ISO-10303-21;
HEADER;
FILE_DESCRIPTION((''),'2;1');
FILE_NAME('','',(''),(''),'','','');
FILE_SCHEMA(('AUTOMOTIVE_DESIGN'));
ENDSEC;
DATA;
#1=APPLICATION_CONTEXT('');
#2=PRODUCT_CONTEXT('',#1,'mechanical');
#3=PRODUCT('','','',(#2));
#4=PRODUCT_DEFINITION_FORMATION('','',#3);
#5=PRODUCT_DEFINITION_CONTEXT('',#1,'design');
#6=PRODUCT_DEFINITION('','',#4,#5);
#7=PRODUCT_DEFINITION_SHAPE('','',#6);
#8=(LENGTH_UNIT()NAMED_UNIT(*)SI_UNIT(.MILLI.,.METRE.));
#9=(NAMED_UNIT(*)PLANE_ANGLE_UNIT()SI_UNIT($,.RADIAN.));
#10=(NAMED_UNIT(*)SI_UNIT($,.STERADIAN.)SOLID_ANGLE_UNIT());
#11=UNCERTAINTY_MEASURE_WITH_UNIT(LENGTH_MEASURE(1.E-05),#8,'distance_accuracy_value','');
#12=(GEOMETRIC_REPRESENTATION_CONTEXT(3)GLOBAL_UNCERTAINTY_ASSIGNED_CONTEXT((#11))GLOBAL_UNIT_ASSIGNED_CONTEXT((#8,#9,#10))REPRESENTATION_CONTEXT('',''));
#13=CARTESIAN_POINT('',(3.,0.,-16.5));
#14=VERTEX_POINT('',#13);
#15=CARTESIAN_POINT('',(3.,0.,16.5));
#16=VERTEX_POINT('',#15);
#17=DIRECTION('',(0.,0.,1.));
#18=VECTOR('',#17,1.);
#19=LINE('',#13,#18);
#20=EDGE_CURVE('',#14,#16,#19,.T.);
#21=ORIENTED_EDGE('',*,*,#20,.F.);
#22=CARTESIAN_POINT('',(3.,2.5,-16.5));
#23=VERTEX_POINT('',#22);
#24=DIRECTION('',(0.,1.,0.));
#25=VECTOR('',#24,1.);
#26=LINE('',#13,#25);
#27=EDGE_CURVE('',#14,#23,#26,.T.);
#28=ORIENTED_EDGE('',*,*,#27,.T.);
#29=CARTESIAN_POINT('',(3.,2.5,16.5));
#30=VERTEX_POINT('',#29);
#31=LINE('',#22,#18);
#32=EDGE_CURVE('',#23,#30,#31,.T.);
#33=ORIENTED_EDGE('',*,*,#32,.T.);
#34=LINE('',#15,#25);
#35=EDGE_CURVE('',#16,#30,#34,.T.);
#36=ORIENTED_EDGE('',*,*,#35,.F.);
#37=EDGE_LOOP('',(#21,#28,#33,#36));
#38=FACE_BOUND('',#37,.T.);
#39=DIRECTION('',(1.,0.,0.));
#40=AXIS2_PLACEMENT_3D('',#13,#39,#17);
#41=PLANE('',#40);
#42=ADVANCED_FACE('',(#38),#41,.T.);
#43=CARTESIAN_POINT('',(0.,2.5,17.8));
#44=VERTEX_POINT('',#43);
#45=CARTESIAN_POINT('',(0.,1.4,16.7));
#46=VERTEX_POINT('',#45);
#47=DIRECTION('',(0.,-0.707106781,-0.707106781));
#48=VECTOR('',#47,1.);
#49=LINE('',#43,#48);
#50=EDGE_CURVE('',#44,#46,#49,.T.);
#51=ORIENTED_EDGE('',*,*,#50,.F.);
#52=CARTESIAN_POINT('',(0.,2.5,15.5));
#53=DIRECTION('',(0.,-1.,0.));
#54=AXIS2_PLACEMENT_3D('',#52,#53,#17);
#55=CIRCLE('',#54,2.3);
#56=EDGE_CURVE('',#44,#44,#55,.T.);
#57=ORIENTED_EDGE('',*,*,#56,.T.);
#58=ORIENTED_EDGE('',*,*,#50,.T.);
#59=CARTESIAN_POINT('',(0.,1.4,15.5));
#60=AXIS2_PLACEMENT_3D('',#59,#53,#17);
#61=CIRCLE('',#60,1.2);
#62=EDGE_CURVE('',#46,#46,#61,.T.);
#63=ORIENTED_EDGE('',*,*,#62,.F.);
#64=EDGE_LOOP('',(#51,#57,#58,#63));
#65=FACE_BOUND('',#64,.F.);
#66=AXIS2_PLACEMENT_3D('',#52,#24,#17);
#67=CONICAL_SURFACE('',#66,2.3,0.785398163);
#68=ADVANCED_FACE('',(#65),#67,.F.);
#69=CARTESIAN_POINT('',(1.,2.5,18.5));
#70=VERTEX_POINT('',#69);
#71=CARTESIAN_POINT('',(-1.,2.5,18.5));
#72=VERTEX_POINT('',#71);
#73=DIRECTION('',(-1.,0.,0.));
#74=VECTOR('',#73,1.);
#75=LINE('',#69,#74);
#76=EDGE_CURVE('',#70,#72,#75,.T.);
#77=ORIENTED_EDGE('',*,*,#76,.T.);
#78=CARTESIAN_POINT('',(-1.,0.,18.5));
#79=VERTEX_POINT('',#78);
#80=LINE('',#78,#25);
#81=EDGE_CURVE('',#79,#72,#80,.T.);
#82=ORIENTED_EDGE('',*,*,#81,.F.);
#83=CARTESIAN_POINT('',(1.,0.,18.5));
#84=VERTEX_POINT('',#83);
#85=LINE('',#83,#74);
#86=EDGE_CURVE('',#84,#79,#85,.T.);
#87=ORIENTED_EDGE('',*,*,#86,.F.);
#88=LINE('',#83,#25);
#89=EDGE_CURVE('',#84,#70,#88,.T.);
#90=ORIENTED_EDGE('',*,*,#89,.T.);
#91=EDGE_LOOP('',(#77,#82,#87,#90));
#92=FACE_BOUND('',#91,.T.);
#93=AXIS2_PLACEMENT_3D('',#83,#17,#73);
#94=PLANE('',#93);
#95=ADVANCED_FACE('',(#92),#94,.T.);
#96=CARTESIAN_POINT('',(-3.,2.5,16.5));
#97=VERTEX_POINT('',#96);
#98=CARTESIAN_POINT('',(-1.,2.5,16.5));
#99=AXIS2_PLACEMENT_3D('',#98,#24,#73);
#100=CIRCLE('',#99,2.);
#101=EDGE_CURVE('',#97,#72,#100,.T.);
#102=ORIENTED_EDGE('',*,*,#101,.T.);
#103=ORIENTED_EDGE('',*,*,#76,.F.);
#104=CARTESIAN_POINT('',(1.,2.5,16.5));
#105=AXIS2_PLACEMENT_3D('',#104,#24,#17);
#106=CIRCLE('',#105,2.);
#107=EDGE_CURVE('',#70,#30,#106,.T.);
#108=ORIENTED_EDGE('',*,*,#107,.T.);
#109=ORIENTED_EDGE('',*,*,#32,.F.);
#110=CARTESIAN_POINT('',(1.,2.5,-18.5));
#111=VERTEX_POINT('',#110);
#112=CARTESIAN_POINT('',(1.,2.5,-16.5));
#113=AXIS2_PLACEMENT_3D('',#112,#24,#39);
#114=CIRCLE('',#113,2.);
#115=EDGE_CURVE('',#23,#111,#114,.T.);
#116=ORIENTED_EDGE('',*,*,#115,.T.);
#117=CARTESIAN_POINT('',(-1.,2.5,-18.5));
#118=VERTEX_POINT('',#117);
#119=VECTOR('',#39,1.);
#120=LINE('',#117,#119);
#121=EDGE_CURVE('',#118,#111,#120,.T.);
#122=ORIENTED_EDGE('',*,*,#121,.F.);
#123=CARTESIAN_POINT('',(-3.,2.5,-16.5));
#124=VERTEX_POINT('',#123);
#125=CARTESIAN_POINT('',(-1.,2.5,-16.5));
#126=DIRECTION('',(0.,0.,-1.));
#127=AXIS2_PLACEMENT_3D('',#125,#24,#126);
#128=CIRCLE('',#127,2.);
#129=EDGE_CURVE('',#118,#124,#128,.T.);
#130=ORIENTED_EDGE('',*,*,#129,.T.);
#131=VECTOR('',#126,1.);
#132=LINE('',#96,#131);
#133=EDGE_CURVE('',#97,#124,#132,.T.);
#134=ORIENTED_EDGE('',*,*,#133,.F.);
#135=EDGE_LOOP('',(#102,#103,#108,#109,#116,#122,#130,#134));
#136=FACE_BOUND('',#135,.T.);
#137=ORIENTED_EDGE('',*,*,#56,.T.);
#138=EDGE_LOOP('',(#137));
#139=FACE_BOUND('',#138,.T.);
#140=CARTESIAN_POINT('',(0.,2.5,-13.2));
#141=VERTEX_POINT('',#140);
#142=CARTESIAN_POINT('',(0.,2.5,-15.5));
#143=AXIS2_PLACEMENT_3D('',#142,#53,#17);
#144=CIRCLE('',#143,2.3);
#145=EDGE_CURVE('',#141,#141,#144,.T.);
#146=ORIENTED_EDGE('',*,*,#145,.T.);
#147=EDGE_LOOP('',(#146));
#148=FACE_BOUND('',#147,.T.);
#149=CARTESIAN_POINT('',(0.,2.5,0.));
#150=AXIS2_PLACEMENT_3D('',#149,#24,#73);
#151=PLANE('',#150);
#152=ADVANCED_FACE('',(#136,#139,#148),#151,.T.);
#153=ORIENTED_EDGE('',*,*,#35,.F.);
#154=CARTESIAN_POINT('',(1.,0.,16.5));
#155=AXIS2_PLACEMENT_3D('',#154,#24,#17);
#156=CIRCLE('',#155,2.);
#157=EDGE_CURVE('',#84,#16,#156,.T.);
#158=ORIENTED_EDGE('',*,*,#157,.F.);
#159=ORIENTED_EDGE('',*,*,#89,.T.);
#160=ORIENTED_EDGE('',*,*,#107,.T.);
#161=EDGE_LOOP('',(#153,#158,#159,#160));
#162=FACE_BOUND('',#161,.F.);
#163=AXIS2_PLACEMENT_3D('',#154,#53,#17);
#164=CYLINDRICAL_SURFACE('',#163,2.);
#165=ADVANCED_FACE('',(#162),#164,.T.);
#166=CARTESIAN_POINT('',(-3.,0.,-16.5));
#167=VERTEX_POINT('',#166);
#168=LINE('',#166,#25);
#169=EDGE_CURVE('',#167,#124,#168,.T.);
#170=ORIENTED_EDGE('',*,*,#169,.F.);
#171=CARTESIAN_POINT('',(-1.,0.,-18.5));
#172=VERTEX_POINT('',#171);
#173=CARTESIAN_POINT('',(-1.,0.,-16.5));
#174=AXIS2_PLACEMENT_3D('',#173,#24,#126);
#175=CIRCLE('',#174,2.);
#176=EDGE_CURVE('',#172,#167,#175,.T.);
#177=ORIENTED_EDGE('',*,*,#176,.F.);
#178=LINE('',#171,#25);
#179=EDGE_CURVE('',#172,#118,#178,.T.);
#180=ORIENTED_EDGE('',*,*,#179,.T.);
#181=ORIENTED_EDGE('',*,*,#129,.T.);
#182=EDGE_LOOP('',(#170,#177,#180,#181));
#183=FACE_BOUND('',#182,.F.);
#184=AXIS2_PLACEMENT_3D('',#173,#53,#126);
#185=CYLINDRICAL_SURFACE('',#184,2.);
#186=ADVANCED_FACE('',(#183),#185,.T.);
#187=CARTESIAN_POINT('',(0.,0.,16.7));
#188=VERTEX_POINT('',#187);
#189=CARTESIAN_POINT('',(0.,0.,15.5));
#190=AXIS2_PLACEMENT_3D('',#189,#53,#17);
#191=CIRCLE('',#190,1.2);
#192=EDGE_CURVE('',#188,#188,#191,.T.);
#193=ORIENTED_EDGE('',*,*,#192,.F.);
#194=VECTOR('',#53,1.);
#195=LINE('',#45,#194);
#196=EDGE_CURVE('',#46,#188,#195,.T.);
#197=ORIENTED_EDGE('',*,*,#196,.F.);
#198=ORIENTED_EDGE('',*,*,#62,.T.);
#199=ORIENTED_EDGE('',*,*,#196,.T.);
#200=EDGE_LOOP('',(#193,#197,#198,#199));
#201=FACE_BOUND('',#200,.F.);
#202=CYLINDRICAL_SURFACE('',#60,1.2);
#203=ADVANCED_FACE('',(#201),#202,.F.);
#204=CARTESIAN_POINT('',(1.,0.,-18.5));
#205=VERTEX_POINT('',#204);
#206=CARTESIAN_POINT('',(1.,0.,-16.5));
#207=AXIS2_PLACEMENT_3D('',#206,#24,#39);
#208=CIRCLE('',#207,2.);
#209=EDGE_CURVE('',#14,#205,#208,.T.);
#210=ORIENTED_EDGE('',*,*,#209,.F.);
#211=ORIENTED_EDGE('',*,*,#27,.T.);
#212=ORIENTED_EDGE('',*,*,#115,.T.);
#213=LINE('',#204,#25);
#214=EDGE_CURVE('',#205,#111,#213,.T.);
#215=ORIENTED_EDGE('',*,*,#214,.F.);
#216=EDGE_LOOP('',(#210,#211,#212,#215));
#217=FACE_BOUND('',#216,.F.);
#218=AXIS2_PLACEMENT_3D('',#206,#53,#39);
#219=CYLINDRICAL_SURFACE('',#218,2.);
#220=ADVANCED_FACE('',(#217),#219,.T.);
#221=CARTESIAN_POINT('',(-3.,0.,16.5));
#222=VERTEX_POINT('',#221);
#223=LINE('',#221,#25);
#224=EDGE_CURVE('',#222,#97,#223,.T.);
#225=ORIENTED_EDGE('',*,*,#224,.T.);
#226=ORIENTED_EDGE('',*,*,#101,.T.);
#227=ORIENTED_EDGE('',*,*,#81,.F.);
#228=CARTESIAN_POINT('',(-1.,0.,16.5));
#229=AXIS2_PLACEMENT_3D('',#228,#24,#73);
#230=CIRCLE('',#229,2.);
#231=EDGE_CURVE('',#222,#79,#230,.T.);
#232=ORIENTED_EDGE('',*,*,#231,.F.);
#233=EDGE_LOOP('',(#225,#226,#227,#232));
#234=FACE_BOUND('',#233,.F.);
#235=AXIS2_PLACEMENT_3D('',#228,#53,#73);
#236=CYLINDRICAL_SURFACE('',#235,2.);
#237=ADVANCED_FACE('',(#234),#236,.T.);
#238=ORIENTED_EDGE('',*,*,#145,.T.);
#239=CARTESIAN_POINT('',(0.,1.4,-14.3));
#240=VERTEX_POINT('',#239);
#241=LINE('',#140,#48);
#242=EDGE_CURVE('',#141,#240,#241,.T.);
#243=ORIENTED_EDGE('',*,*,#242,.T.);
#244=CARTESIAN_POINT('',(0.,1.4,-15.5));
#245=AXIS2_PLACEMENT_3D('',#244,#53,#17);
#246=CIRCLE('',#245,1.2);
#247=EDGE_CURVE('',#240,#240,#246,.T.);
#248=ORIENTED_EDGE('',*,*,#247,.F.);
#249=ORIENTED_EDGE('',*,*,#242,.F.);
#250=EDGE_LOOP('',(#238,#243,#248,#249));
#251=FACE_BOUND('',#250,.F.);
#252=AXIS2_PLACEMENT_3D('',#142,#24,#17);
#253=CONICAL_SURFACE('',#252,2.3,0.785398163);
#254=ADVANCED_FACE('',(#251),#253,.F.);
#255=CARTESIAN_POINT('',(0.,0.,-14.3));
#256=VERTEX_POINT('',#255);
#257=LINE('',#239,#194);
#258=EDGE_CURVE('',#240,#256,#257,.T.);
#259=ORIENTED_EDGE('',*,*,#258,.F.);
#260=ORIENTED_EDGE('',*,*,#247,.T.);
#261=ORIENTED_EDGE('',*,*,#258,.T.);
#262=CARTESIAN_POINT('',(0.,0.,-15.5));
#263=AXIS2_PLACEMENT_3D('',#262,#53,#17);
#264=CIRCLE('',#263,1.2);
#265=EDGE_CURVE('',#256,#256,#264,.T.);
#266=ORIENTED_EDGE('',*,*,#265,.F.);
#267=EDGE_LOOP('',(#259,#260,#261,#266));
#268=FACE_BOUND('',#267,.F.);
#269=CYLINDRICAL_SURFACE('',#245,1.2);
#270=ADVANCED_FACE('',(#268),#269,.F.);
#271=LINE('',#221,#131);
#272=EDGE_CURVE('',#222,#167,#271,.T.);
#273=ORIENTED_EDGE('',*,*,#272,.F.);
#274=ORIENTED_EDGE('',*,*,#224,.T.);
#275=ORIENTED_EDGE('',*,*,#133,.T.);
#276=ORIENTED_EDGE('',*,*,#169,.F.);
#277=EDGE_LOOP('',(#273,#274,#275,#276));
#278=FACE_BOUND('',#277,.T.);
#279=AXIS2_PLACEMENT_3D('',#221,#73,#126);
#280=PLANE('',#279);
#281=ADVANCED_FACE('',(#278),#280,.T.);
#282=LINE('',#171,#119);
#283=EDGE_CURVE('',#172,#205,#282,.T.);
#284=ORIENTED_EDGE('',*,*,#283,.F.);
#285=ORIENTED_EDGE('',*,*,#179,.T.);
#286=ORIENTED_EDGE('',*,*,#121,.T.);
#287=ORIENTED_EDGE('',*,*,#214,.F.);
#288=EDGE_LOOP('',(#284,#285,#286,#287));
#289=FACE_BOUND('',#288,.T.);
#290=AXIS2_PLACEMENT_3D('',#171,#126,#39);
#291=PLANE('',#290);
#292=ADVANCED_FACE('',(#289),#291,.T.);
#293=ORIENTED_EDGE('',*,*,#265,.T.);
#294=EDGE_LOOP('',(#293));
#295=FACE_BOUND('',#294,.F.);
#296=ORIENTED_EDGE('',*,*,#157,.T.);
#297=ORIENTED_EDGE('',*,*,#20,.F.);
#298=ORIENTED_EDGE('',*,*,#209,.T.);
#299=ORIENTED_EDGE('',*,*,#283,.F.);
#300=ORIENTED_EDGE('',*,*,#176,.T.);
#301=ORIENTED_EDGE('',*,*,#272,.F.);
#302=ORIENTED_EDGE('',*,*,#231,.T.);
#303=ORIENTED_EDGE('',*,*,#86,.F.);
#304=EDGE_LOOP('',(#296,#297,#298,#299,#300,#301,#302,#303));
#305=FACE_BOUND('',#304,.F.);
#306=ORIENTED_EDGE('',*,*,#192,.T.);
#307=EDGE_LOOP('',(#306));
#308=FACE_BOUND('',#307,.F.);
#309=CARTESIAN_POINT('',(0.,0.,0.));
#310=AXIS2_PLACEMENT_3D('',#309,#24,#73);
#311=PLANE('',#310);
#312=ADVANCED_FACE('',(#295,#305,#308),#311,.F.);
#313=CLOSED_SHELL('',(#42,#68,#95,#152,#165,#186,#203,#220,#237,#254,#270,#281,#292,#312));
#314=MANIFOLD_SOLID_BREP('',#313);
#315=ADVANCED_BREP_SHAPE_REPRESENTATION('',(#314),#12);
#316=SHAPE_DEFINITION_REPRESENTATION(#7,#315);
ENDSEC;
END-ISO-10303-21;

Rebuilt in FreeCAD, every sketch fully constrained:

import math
import FreeCAD as App
import Part
import Sketcher

doc = App.newDocument("Part")
body = doc.addObject("PartDesign::Body", "Body")

sketch1 = body.newObject("Sketcher::SketchObject", "Sketch")
sketch1.AttachmentSupport = (doc.getObject("XZ_Plane"), [""])
sketch1.MapMode = "FlatFace"
sketch1.addGeometry([
    Part.LineSegment(App.Vector(-1, 18.5, 0), App.Vector(1, 18.5, 0)),
    Part.ArcOfCircle(Part.Circle(App.Vector(1, 16.5, 0), App.Vector(0, 0, 1), 2), math.radians(0), math.radians(90)),
    Part.LineSegment(App.Vector(3, 16.5, 0), App.Vector(3, -16.5, 0)),
    Part.ArcOfCircle(Part.Circle(App.Vector(1, -16.5, 0), App.Vector(0, 0, 1), 2), math.radians(-90), math.radians(0)),
    Part.LineSegment(App.Vector(1, -18.5, 0), App.Vector(-1, -18.5, 0)),
    Part.ArcOfCircle(Part.Circle(App.Vector(-1, -16.5, 0), App.Vector(0, 0, 1), 2), math.radians(180), math.radians(270)),
    Part.LineSegment(App.Vector(-3, -16.5, 0), App.Vector(-3, 16.5, 0)),
    Part.ArcOfCircle(Part.Circle(App.Vector(-1, 16.5, 0), App.Vector(0, 0, 1), 2), math.radians(90), math.radians(180)),
], False)
sketch1.addConstraint([
    Sketcher.Constraint("Tangent", 0, 2, 1, 2),
    Sketcher.Constraint("Tangent", 1, 1, 2, 1),
    Sketcher.Constraint("Tangent", 2, 2, 3, 2),
    Sketcher.Constraint("Tangent", 3, 1, 4, 1),
    Sketcher.Constraint("Tangent", 4, 2, 5, 2),
    Sketcher.Constraint("Tangent", 5, 1, 6, 1),
    Sketcher.Constraint("Tangent", 6, 2, 7, 2),
    Sketcher.Constraint("Tangent", 7, 1, 0, 1),
    Sketcher.Constraint("Horizontal", 0),
    Sketcher.Constraint("Vertical", 2),
    Sketcher.Constraint("Horizontal", 4),
    Sketcher.Constraint("Vertical", 6),
    Sketcher.Constraint("Equal", 1, 3),
    Sketcher.Constraint("Equal", 3, 5),
    Sketcher.Constraint("Equal", 5, 7),
    Sketcher.Constraint("Symmetric", 1, 3, 5, 3, -1, 1),
    Sketcher.Constraint("Radius", 1, 2.0),
    Sketcher.Constraint("DistanceX", 0, 1, 0, 2, 2.0),
    Sketcher.Constraint("DistanceY", 2, 2, 2, 1, 33.0),
])
pad1 = body.newObject("PartDesign::Pad", "Pad")
pad1.Profile = sketch1
pad1.Length = 2.5
pad1.Reversed = True

sketch2 = body.newObject("Sketcher::SketchObject", "Sketch001")
sketch2.AttachmentSupport = (doc.getObject("XZ_Plane"), [""])
sketch2.MapMode = "FlatFace"
sketch2.AttachmentOffset = App.Placement(App.Vector(0, 0, -2.5), App.Rotation())
sketch2.addGeometry([
    Part.Circle(App.Vector(0, 15.5, 0), App.Vector(0, 0, 1), 1.2),
    Part.Circle(App.Vector(0, -15.5, 0), App.Vector(0, 0, 1), 1.2),
], False)
sketch2.addConstraint([
    Sketcher.Constraint("Equal", 0, 1),
    Sketcher.Constraint("Symmetric", 0, 3, 1, 3, -1, 1),
    Sketcher.Constraint("PointOnObject", 0, 3, -2),
    Sketcher.Constraint("Diameter", 0, 2.4),
    Sketcher.Constraint("DistanceY", 1, 3, 0, 3, 31.0),
])
doc.recompute()
hole = body.newObject("PartDesign::Hole", "Hole")
hole.Profile = sketch2
hole.ThreadType = "None"
hole.Diameter = 2.4
hole.DepthType = "Dimension"
hole.Depth = 4
hole.DrillPoint = "Flat"
hole.HoleCutType = "Countersink"
hole.HoleCutDiameter = 4.6
hole.HoleCutCountersinkAngle = 90
hole.Reversed = True

doc.recompute()
